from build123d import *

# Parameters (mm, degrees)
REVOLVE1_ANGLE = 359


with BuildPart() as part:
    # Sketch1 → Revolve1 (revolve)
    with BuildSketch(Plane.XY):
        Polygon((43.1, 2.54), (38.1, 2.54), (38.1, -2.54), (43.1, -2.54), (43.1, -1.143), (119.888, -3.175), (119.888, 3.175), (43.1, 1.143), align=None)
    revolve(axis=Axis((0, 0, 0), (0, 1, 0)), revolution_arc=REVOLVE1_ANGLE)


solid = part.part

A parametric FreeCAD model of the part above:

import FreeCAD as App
import Part
import Sketcher
from FreeCAD import Vector
Q = App.Units.Quantity

doc = App.newDocument("Part")
body = doc.addObject("PartDesign::Body", "Body")

# Sketch on XY plane
sketch1 = doc.addObject("Sketcher::SketchObject", "Sketch")
body.addObject(sketch1)
sketch1.AttachmentSupport = (doc.XY_Plane, [""])
sketch1.MapMode = "FlatFace"
sketch1.addGeometry(Part.LineSegment(Vector(43.1, 2.5, 0), Vector(38.1, 2.5, 0)), False)
sketch1.addGeometry(Part.LineSegment(Vector(38.1, 2.5, 0), Vector(38.1, -2.5, 0)), False)
sketch1.addGeometry(Part.LineSegment(Vector(38.1, -2.5, 0), Vector(43.1, -2.5, 0)), False)
sketch1.addGeometry(Part.LineSegment(Vector(43.1, -2.5, 0), Vector(43.1, -1.1, 0)), False)
sketch1.addGeometry(Part.LineSegment(Vector(43.1, -1.1, 0), Vector(119.9, -3.2, 0)), False)
sketch1.addGeometry(Part.LineSegment(Vector(119.9, -3.2, 0), Vector(119.9, 3.2, 0)), False)
sketch1.addGeometry(Part.LineSegment(Vector(119.9, 3.2, 0), Vector(43.1, 1.1, 0)), False)
sketch1.addGeometry(Part.LineSegment(Vector(43.1, 1.1, 0), Vector(43.1, 2.5, 0)), False)
sketch1.addConstraint(Sketcher.Constraint("Coincident", 0, 2, 1, 1))
sketch1.addConstraint(Sketcher.Constraint("Coincident", 1, 2, 2, 1))
sketch1.addConstraint(Sketcher.Constraint("Coincident", 2, 2, 3, 1))
sketch1.addConstraint(Sketcher.Constraint("Coincident", 3, 2, 4, 1))
sketch1.addConstraint(Sketcher.Constraint("Coincident", 4, 2, 5, 1))
sketch1.addConstraint(Sketcher.Constraint("Coincident", 5, 2, 6, 1))
sketch1.addConstraint(Sketcher.Constraint("Coincident", 6, 2, 7, 1))
sketch1.addConstraint(Sketcher.Constraint("Coincident", 7, 2, 0, 1))
sketch1.addConstraint(Sketcher.Constraint("Horizontal", 0))
sketch1.addConstraint(Sketcher.Constraint("Vertical", 1))
sketch1.addConstraint(Sketcher.Constraint("Horizontal", 2))
sketch1.addConstraint(Sketcher.Constraint("Vertical", 3))
sketch1.addConstraint(Sketcher.Constraint("Vertical", 5))
sketch1.addConstraint(Sketcher.Constraint("Vertical", 7))
sketch1.addConstraint(Sketcher.Constraint("Symmetric", 3, 2, 6, 2, -1))
sketch1.addConstraint(Sketcher.Constraint("Equal", 3, 7))
sketch1.addConstraint(Sketcher.Constraint("Equal", 4, 6))
sketch1.addConstraint(Sketcher.Constraint("DistanceY", 1, 2, 1, 1, Q("0.2 in")))
sketch1.addConstraint(Sketcher.Constraint("DistanceY", 5, 1, 5, 2, Q("0.25 in")))
sketch1.addConstraint(Sketcher.Constraint("DistanceX", -1, 1, 0, 2, Q("1.5 in")))
sketch1.addConstraint(Sketcher.Constraint("DistanceY", 3, 1, 3, 2, Q("0.055 in")))
sketch1.addConstraint(Sketcher.Constraint("DistanceX", -1, 1, 4, 2, Q("4.72 in")))
sketch1.addConstraint(Sketcher.Constraint("DistanceX", 0, 2, 0, 1, 5.0))
revolution = doc.addObject("PartDesign::Revolution", "Revolution")
body.addObject(revolution)
revolution.Profile = sketch1
revolution.ReferenceAxis = (sketch1, ["V_Axis"])
revolution.Angle = 359

doc.recompute()
